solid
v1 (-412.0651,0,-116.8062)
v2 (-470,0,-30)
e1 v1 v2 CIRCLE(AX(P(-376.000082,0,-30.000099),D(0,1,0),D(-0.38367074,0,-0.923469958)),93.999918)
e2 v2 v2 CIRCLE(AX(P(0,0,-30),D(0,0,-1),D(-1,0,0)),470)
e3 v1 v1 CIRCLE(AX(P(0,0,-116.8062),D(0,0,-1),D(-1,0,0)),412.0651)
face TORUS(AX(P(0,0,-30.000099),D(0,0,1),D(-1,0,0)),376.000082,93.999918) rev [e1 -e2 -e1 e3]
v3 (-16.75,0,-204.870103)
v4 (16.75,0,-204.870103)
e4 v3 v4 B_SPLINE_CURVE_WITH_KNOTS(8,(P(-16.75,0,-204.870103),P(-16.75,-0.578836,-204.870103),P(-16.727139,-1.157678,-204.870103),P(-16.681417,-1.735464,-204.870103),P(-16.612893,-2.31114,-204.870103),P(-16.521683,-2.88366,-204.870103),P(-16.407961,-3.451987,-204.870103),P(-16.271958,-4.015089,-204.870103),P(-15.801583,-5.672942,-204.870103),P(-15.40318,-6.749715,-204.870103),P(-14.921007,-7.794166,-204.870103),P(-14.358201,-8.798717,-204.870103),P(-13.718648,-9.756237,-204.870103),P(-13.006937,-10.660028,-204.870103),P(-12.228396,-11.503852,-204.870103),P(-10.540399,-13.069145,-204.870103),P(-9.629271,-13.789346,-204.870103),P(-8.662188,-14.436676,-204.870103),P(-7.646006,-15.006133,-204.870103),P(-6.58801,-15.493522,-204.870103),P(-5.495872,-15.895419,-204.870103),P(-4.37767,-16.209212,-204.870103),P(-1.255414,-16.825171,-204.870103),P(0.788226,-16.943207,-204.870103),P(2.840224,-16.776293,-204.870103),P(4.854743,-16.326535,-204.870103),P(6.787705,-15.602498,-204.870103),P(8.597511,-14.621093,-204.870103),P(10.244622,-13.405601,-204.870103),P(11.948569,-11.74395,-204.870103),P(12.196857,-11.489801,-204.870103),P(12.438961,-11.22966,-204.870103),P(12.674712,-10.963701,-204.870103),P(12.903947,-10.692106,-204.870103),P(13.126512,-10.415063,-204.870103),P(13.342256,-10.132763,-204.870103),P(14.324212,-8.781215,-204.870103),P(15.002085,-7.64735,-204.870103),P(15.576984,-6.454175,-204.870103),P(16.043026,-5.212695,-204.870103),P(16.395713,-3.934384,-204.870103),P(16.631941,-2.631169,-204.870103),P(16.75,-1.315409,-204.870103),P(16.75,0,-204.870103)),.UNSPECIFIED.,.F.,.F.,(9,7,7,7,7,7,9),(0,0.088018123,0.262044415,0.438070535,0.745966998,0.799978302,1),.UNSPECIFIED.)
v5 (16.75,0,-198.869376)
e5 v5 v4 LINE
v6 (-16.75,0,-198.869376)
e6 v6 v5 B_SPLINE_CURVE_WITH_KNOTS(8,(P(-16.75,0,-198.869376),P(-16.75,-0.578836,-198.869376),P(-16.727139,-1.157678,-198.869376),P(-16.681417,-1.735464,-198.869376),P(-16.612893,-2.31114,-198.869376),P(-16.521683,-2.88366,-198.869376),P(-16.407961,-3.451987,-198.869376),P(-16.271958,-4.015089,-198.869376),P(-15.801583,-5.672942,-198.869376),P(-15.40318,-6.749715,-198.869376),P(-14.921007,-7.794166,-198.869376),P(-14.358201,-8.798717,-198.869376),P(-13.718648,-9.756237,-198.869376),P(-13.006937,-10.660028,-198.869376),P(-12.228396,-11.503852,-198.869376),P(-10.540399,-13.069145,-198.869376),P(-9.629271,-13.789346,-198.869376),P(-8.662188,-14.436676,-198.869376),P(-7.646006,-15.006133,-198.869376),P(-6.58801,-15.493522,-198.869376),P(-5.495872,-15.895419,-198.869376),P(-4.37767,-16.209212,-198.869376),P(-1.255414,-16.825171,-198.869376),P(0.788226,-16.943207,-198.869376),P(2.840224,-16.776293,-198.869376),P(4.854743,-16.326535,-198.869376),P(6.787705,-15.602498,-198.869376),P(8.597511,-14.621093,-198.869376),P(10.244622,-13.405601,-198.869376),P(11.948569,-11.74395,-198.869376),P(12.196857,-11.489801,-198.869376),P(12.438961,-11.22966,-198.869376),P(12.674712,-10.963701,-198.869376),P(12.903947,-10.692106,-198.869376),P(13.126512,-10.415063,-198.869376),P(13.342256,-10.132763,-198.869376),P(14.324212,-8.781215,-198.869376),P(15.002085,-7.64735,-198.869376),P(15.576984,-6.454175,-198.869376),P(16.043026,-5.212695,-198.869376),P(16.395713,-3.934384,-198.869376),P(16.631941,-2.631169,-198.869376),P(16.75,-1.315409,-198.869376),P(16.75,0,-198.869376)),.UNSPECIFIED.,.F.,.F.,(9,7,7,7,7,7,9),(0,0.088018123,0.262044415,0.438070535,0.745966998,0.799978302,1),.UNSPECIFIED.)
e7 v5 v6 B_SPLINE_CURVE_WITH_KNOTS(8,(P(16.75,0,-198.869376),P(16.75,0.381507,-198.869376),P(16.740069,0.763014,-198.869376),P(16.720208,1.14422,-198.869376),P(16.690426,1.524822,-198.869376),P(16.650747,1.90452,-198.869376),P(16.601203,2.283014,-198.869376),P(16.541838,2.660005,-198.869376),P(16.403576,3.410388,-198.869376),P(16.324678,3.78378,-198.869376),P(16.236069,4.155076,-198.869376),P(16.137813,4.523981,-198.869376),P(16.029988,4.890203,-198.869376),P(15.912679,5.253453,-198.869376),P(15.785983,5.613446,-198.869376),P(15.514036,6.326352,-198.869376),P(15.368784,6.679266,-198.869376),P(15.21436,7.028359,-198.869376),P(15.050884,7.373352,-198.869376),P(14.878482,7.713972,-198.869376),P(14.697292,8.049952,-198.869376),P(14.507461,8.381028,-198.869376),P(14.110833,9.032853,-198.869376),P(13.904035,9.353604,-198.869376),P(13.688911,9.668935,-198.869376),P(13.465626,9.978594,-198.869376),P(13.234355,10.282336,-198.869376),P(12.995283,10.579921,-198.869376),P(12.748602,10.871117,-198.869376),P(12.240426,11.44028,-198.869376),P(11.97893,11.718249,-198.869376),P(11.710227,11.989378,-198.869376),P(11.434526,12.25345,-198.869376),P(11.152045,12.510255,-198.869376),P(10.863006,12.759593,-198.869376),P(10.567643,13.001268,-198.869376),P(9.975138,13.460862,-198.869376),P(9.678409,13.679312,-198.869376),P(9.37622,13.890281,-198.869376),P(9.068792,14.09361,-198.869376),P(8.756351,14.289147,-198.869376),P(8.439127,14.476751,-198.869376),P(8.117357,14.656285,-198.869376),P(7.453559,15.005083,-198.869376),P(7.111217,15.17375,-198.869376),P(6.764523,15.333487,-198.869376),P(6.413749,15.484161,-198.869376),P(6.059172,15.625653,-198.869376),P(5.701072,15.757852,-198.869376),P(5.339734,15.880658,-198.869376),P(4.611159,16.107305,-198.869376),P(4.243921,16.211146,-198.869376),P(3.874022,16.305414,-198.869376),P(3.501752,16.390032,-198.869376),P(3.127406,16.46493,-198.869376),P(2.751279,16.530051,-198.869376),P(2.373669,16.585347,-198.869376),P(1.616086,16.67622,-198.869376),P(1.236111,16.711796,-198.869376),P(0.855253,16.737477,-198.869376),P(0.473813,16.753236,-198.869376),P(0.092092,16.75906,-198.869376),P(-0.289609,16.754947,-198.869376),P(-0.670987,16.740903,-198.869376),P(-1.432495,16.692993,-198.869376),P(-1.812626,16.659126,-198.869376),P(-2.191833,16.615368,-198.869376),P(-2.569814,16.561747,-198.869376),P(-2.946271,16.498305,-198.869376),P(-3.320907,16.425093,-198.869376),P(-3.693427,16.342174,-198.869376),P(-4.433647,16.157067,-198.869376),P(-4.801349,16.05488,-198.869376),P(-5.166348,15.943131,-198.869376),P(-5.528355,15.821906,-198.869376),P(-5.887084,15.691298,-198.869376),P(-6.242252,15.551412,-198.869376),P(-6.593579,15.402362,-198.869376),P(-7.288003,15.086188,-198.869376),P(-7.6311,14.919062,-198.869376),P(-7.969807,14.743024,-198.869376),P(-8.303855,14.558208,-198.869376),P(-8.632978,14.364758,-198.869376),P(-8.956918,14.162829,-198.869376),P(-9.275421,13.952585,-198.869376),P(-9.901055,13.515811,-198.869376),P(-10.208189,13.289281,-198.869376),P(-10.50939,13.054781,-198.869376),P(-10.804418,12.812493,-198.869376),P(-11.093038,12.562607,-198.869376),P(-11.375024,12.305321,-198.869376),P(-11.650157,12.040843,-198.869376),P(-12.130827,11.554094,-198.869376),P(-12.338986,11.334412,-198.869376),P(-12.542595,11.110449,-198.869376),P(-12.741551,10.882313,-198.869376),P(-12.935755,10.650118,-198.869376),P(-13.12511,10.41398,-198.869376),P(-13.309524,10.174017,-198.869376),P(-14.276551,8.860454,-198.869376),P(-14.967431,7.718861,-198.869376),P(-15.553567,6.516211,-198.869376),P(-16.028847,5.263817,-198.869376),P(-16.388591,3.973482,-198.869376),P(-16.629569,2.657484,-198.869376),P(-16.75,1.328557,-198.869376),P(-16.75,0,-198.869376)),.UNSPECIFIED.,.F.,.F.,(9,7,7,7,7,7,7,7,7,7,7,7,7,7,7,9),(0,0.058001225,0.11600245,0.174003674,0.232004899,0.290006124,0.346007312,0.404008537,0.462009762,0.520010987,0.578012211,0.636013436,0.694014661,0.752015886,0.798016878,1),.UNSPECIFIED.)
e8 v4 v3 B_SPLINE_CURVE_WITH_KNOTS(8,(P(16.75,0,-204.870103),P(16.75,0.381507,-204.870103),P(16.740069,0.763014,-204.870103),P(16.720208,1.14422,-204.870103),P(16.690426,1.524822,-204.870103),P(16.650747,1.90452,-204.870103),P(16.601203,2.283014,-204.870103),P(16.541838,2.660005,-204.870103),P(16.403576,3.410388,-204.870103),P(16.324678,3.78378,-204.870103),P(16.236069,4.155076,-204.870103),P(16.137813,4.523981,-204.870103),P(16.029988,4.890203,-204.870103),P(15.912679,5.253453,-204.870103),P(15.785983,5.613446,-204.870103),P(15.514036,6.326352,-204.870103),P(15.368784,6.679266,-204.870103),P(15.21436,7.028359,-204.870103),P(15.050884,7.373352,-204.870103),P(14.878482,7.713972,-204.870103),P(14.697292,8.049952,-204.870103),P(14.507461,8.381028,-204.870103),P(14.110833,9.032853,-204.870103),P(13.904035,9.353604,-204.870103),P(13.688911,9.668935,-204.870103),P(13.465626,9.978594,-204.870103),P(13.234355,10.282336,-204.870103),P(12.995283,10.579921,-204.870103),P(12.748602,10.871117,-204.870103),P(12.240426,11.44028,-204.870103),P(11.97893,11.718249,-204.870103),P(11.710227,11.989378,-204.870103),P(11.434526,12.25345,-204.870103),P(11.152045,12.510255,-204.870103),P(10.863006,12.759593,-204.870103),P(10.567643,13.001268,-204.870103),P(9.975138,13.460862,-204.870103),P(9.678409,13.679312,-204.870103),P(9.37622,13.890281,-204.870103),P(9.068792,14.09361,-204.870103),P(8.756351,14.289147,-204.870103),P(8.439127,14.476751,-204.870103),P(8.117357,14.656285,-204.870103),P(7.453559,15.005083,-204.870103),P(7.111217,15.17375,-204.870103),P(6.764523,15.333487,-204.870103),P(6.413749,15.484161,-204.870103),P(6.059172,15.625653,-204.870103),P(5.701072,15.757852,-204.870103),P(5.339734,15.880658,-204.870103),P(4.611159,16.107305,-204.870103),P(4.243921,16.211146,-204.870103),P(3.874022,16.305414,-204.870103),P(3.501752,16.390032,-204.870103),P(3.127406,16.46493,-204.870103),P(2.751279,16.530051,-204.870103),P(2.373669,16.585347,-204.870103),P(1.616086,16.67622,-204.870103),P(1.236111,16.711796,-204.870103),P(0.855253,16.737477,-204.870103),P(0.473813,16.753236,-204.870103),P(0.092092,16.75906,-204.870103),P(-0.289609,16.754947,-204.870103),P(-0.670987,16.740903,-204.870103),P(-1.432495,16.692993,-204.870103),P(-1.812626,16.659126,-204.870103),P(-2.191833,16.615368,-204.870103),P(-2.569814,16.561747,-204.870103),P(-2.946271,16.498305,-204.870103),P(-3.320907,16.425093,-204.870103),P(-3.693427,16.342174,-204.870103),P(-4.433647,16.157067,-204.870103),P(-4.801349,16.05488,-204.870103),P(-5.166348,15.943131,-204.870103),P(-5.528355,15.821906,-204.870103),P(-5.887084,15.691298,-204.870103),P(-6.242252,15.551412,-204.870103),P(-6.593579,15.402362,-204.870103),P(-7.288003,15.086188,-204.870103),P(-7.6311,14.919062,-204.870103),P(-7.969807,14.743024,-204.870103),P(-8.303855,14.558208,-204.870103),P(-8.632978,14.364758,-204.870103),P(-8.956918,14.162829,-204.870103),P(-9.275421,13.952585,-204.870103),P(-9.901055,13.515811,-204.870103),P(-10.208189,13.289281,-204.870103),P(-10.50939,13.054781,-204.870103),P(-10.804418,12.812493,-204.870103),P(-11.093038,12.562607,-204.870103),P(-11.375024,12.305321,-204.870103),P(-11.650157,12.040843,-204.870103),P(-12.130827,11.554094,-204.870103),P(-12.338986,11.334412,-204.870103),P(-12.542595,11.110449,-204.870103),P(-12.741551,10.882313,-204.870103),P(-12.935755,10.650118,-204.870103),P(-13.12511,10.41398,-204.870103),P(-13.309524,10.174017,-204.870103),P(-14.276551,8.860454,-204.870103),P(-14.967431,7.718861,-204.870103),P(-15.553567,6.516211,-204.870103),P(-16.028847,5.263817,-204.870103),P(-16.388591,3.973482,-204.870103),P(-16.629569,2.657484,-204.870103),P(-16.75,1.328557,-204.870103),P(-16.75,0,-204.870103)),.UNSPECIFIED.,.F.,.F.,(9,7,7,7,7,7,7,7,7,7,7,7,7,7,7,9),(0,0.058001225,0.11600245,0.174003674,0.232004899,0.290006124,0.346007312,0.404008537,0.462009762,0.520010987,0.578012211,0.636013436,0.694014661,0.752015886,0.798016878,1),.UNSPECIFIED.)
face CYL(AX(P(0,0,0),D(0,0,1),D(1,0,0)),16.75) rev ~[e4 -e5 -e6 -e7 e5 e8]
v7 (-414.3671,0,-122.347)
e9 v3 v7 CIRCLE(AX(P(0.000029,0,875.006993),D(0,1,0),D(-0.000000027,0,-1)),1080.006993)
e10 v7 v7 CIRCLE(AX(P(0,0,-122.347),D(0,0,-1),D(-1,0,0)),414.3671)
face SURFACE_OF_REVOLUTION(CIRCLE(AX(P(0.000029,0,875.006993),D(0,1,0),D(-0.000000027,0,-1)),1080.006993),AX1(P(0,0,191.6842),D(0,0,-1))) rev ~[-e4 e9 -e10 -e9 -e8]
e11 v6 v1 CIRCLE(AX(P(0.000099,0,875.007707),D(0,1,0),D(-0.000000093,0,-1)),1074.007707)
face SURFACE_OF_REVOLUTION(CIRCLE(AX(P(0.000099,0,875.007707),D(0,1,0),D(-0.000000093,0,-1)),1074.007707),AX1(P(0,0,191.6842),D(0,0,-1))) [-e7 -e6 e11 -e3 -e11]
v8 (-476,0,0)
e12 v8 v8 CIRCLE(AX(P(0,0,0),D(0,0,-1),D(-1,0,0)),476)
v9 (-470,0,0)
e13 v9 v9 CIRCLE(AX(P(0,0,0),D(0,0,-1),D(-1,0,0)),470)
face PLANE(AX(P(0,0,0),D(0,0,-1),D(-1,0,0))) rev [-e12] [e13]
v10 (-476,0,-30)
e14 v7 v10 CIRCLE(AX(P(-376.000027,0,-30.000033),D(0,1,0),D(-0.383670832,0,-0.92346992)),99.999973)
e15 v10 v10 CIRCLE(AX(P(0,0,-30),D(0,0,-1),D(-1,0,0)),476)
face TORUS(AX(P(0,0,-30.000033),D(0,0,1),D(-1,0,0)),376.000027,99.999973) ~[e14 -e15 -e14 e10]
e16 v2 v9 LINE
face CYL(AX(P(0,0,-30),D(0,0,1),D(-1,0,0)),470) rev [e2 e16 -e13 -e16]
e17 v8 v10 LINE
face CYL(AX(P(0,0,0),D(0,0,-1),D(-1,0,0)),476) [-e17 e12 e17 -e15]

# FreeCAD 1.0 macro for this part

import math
import FreeCAD as App
import Part
import Sketcher
Q = App.Units.Quantity

doc = App.newDocument("Part")
body = doc.addObject("PartDesign::Body", "Body")

sketch1 = doc.addObject("Sketcher::SketchObject", "Sketch")
body.addObject(sketch1)
sketch1.AttachmentSupport = (doc.XZ_Plane, [""])
sketch1.MapMode = "FlatFace"
sketch1.addGeometry(Part.LineSegment(App.Vector(-476, -30, 0), App.Vector(-476, 0, 0)), False)
sketch1.addGeometry(Part.LineSegment(App.Vector(-476, 0, 0), App.Vector(-470, 0, 0)), False)
sketch1.addGeometry(Part.LineSegment(App.Vector(-470, 0, 0), App.Vector(-470, -30, 0)), False)
sketch1.addGeometry(Part.ArcOfCircle(Part.Circle(App.Vector(-376, -30, 0), App.Vector(0, 0, 1), 94), math.radians(180), math.radians(247)), False)
sketch1.addGeometry(Part.ArcOfCircle(Part.Circle(App.Vector(0, 875, 0), App.Vector(0, 0, 1), 1074), math.radians(-113), math.radians(-90)), False)
sketch1.addGeometry(Part.LineSegment(App.Vector(0, -199, 0), App.Vector(0, -205, 0)), False)
sketch1.addGeometry(Part.ArcOfCircle(Part.Circle(App.Vector(0, 875, 0), App.Vector(0, 0, 1), 1080), math.radians(-113), math.radians(-90)), False)
sketch1.addGeometry(Part.ArcOfCircle(Part.Circle(App.Vector(-376, -30, 0), App.Vector(0, 0, 1), 100), math.radians(180), math.radians(247)), False)
sketch1.addConstraint(Sketcher.Constraint("Coincident", 0, 2, 1, 1))
sketch1.addConstraint(Sketcher.Constraint("Coincident", 1, 2, 2, 1))
sketch1.addConstraint(Sketcher.Constraint("Tangent", 2, 2, 3, 1))
sketch1.addConstraint(Sketcher.Constraint("Tangent", 3, 2, 4, 1))
sketch1.addConstraint(Sketcher.Constraint("Coincident", 4, 2, 5, 1))
sketch1.addConstraint(Sketcher.Constraint("Coincident", 5, 2, 6, 2))
sketch1.addConstraint(Sketcher.Constraint("Tangent", 6, 1, 7, 2))
sketch1.addConstraint(Sketcher.Constraint("Tangent", 7, 1, 0, 1))
sketch1.addConstraint(Sketcher.Constraint("Vertical", 0))
sketch1.addConstraint(Sketcher.Constraint("Horizontal", 1))
sketch1.addConstraint(Sketcher.Constraint("Vertical", 2))
sketch1.addConstraint(Sketcher.Constraint("Vertical", 5))
sketch1.addConstraint(Sketcher.Constraint("Coincident", 7, 3, 3, 3))
sketch1.addConstraint(Sketcher.Constraint("PointOnObject", 4, 3, -2))
sketch1.addConstraint(Sketcher.Constraint("PointOnObject", 6, 3, -2))
sketch1.addConstraint(Sketcher.Constraint("PointOnObject", 0, 2, -1))
sketch1.addConstraint(Sketcher.Constraint("PointOnObject", 5, 2, -2))
sketch1.addConstraint(Sketcher.Constraint("Equal", 1, 5))
sketch1.addConstraint(Sketcher.Constraint("Radius", 7, Q("100 mm")))
sketch1.addConstraint(Sketcher.Constraint("DistanceX", 1, 1, 1, 2, Q("6 mm")))
sketch1.addConstraint(Sketcher.Constraint("DistanceY", 0, 1, 0, 2, Q("30 mm")))
sketch1.addConstraint(Sketcher.Constraint("DistanceY", 5, 2, -1, 1, Q("205 mm")))
sketch1.addConstraint(Sketcher.Constraint("Radius", 6, Q("1080.0067 mm")))
revolution = doc.addObject("PartDesign::Revolution", "Revolution")
body.addObject(revolution)
revolution.Profile = sketch1
revolution.ReferenceAxis = (sketch1, ["V_Axis"])
revolution.Angle = 360

sketch2 = doc.addObject("Sketcher::SketchObject", "Sketch001")
body.addObject(sketch2)
sketch2.AttachmentSupport = (doc.XY_Plane, [""])
sketch2.MapMode = "FlatFace"
sketch2.addGeometry(Part.Circle(App.Vector(0, 0, 0), App.Vector(0, 0, 1), 17), False)
sketch2.addConstraint(Sketcher.Constraint("Coincident", 0, 3, -1, 1))
sketch2.addConstraint(Sketcher.Constraint("Diameter", 0, Q("33.5 mm")))
pocket1 = doc.addObject("PartDesign::Pocket", "Pocket")
body.addObject(pocket1)
pocket1.Profile = sketch2
pocket1.Type = "ThroughAll"

doc.recompute()
